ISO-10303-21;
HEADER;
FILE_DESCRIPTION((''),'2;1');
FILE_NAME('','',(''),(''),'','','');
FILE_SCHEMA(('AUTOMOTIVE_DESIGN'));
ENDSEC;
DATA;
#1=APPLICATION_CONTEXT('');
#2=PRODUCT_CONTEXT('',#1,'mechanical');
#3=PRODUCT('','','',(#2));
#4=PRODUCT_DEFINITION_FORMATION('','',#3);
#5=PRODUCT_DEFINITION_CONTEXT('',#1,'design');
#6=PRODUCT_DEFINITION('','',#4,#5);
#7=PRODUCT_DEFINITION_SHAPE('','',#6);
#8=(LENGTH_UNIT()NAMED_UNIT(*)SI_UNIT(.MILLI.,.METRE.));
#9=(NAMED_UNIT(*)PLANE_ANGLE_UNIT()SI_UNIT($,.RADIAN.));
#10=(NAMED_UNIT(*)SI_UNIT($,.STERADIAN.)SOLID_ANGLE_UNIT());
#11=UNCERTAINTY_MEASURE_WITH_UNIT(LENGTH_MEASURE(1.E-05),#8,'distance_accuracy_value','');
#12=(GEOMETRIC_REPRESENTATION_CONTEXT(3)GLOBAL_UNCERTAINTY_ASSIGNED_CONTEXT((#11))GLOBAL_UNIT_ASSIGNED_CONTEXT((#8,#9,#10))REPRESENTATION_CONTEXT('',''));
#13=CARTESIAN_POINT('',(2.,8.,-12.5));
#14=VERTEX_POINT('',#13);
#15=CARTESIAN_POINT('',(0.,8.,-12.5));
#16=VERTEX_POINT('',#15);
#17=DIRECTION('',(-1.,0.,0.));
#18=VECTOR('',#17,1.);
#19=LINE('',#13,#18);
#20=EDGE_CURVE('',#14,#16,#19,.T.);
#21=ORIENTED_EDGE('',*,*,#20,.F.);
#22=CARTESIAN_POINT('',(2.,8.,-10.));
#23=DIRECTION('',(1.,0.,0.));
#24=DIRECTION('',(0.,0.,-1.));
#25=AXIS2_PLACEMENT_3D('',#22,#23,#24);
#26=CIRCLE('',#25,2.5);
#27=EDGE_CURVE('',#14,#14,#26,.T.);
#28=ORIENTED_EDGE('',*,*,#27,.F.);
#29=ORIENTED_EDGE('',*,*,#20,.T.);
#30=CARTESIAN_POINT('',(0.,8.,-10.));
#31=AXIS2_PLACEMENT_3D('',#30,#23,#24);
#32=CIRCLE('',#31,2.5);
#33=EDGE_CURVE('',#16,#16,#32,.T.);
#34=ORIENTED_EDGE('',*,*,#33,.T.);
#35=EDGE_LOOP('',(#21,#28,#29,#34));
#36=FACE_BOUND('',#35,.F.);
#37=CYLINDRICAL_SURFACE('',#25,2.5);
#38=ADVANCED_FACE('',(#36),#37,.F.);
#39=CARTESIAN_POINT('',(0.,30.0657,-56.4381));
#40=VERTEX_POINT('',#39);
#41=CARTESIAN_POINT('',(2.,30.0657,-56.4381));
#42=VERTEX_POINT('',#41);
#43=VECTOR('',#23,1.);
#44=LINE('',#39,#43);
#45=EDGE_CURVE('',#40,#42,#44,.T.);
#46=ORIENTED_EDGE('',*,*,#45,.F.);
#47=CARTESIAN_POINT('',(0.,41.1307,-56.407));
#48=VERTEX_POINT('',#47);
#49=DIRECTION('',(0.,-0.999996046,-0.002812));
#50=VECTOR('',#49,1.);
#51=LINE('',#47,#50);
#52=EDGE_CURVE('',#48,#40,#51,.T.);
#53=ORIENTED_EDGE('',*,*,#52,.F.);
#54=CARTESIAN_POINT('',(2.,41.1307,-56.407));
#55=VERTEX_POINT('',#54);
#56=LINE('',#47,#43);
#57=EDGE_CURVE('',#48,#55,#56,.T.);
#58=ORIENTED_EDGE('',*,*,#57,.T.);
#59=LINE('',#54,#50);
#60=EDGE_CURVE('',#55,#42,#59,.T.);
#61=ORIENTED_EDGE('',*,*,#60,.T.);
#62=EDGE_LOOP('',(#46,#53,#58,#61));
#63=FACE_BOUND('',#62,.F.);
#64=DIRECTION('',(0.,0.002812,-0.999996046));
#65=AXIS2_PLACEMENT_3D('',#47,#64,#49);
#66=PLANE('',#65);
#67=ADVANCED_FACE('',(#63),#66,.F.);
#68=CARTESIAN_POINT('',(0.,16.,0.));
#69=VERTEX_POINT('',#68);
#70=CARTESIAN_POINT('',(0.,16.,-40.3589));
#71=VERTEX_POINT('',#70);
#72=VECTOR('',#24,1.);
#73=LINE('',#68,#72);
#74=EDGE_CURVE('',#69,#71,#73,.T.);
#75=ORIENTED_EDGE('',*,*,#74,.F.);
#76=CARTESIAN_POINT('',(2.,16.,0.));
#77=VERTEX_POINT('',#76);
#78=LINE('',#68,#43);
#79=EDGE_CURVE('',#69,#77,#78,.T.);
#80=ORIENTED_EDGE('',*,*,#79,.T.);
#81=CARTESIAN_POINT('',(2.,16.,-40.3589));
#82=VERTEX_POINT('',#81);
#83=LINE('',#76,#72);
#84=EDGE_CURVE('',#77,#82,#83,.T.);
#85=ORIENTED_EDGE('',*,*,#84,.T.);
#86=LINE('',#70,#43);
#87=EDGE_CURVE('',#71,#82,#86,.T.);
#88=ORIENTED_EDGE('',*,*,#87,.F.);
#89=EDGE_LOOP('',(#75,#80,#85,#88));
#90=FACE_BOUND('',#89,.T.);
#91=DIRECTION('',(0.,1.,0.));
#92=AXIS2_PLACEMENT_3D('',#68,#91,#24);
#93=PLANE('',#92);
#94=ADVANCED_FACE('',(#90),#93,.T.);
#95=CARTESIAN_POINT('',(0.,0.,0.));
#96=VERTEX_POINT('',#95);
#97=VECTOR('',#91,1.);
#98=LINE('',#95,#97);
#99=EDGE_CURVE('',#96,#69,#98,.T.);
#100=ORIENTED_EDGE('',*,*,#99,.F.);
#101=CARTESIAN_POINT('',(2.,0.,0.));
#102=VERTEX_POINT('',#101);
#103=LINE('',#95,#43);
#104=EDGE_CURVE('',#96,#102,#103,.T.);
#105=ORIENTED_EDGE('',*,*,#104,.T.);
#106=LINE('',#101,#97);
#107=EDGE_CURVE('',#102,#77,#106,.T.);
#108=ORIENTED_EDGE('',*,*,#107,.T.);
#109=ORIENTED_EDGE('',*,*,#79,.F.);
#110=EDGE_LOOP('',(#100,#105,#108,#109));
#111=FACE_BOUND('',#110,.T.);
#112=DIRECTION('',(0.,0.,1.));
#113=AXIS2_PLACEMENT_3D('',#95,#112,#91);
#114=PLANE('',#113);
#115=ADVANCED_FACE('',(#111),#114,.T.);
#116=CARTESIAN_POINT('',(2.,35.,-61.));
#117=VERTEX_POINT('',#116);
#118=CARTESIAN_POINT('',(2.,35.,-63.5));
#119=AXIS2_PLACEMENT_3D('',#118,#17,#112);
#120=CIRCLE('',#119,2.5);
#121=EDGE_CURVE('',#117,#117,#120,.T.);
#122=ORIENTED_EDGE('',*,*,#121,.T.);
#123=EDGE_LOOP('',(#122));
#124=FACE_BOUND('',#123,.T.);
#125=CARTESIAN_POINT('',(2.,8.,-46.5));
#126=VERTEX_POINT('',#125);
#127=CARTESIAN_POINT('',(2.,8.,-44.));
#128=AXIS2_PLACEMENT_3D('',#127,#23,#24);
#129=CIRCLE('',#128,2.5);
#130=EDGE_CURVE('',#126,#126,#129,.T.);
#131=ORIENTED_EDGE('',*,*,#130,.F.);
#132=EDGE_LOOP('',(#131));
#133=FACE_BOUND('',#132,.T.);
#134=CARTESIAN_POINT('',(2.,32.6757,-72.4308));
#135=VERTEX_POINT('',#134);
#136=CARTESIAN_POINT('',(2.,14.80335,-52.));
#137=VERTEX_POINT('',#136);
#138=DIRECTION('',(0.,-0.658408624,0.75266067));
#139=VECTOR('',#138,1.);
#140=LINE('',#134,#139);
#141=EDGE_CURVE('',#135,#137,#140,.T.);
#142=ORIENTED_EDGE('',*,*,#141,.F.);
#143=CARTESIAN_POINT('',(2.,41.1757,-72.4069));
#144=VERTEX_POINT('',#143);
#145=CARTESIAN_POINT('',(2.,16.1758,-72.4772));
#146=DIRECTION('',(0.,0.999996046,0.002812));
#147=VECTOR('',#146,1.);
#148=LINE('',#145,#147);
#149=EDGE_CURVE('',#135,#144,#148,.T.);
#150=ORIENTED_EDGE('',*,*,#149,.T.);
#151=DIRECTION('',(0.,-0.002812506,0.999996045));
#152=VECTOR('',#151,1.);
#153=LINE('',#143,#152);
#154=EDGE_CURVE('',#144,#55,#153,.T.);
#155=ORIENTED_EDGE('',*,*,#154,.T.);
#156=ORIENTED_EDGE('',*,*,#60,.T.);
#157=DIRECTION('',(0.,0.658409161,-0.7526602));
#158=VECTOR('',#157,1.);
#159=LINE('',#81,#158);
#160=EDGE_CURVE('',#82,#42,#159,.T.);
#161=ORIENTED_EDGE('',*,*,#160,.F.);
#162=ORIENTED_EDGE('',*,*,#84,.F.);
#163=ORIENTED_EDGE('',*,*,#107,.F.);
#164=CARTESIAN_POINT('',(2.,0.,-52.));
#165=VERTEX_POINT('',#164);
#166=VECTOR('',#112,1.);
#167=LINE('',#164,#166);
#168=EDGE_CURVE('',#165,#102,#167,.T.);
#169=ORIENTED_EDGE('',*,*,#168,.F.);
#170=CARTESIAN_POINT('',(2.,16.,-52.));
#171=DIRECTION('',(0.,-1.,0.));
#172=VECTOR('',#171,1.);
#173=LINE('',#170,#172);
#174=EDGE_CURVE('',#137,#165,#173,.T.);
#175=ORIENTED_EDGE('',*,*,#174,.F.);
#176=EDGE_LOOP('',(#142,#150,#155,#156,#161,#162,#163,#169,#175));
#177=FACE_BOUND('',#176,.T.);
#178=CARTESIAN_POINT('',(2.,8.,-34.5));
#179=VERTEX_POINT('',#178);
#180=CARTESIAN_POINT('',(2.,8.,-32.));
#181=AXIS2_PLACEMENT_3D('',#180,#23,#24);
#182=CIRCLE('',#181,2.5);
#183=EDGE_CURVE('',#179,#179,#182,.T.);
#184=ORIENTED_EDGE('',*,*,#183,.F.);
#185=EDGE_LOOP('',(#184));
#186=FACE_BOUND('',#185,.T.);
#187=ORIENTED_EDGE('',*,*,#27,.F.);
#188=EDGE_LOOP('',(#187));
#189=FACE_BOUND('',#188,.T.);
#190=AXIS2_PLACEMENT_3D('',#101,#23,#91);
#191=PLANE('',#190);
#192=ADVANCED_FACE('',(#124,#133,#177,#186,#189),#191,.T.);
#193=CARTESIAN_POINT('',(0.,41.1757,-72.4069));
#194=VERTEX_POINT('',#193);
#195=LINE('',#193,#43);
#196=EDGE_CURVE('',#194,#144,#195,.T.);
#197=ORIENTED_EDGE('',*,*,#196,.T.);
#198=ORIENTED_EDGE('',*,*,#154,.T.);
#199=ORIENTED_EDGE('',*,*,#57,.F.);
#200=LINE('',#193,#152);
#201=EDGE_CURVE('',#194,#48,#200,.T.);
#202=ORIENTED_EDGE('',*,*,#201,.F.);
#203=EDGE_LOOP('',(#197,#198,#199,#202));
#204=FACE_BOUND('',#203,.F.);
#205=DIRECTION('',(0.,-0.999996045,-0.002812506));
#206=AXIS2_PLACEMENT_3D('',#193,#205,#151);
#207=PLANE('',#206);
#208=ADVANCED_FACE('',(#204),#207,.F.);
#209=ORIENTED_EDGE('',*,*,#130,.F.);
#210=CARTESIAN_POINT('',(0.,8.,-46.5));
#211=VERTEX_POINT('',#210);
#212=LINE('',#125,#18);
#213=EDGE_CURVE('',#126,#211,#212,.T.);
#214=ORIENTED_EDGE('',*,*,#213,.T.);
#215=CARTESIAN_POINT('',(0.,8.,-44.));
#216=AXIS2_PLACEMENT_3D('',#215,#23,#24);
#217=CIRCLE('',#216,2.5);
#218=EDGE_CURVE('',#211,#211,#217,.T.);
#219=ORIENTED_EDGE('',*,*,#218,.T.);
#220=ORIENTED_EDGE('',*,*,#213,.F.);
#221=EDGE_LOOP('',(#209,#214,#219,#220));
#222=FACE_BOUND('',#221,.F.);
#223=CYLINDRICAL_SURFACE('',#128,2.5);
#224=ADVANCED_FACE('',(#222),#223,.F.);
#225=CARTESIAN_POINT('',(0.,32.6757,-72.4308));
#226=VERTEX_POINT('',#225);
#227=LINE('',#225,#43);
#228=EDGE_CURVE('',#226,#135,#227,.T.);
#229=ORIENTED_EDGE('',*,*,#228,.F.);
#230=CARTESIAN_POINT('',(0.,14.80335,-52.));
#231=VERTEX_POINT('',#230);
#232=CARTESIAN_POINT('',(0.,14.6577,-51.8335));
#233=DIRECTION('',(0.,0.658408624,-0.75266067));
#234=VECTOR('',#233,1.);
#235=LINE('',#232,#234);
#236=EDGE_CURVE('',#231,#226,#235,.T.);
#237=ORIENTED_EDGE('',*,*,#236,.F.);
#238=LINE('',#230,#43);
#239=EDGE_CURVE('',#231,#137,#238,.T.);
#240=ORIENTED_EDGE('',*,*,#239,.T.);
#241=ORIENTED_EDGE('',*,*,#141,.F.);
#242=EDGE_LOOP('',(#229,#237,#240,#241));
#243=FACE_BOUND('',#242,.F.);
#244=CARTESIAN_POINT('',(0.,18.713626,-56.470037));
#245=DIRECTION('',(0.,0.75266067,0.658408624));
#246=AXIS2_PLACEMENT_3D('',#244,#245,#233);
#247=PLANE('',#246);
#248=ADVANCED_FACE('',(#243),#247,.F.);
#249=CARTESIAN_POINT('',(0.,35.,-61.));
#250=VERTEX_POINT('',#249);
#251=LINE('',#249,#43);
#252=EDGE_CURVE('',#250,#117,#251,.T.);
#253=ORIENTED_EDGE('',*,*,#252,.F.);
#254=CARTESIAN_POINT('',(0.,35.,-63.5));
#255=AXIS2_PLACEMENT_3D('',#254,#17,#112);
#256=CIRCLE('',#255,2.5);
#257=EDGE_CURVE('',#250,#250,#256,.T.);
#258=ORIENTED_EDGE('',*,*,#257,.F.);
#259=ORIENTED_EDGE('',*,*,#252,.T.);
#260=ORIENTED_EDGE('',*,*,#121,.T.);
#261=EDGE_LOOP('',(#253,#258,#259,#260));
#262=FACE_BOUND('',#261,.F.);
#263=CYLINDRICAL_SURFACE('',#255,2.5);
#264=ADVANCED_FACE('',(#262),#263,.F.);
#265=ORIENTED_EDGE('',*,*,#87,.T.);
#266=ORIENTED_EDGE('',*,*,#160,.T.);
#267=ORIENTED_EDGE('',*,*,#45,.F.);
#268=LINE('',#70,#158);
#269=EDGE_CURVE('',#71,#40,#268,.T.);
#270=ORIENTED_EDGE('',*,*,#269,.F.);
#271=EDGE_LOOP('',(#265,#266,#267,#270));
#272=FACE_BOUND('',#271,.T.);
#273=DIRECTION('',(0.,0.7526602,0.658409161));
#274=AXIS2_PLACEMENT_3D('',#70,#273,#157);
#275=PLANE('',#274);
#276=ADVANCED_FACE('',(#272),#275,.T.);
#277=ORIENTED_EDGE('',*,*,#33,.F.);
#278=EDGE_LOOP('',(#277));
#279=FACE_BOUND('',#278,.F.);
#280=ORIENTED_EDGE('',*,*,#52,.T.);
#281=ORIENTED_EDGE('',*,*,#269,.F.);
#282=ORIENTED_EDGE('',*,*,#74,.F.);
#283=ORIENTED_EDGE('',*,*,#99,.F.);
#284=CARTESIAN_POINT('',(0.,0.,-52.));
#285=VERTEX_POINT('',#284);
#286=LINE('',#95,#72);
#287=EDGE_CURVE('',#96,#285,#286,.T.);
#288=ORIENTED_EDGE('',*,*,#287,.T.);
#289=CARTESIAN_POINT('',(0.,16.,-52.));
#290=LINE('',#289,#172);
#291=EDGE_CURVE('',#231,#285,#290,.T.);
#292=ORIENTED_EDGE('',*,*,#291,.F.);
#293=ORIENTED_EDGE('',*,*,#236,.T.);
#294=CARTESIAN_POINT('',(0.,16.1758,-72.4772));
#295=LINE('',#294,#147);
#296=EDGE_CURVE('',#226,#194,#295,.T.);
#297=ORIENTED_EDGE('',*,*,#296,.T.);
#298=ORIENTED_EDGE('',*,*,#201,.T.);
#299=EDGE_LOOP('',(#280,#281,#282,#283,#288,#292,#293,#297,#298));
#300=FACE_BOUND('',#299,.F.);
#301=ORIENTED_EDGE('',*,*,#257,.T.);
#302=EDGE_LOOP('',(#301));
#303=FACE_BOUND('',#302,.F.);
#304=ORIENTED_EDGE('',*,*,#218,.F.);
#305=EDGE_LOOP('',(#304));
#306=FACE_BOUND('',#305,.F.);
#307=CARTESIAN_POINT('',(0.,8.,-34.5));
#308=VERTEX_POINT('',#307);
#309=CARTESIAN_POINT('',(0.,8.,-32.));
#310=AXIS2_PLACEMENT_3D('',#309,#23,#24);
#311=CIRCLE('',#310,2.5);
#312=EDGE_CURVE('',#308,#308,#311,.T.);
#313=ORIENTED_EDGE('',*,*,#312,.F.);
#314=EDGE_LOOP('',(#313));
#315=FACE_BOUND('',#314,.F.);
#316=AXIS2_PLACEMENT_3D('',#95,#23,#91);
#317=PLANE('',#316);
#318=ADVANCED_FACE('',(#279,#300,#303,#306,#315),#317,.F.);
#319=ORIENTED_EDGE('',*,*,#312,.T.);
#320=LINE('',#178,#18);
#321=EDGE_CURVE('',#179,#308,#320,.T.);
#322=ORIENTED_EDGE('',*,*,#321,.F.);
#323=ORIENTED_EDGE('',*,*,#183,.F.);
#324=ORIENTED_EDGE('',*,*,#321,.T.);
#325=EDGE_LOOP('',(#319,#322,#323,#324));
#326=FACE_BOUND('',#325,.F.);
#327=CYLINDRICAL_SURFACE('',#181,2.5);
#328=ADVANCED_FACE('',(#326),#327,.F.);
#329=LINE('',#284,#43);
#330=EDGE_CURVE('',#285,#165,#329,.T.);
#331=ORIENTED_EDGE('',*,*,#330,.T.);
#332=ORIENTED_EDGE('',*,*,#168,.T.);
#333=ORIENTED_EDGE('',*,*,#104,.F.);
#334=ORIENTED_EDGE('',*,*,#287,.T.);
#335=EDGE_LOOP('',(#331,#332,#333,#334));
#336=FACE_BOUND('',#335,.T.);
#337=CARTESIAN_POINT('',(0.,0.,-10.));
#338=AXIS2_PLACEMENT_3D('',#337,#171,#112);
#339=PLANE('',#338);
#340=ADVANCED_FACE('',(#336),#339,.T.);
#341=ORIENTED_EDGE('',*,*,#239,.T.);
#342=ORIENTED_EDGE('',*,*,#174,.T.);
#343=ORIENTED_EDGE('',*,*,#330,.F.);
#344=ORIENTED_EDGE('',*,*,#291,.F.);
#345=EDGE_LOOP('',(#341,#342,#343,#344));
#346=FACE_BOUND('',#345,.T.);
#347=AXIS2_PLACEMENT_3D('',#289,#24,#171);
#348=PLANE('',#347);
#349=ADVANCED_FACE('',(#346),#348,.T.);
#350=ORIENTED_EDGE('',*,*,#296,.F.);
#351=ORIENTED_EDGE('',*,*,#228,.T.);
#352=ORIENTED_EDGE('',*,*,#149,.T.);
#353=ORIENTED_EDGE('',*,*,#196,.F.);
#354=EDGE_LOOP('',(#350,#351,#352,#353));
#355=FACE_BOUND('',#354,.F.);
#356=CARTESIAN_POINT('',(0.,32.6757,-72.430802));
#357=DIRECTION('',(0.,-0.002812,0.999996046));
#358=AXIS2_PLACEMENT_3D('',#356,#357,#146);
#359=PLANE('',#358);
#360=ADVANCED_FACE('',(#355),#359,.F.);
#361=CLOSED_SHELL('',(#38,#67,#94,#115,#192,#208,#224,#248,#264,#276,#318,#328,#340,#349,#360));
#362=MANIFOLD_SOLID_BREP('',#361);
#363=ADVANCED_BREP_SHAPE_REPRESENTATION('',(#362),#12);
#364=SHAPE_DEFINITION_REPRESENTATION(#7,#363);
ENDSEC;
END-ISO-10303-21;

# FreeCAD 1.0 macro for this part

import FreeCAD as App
import Part
import Sketcher
Q = App.Units.Quantity


def add_polygon(sketch, points):
    """Adds a closed chain of lines whose ends are joined by coincident constraints."""
    first, n = sketch.GeometryCount, len(points)
    for a, b in zip(points, points[1:] + points[:1]):
        sketch.addGeometry(Part.LineSegment(App.Vector(*a, 0), App.Vector(*b, 0)), False)
    for i in range(n):
        sketch.addConstraint(Sketcher.Constraint("Coincident", first + i, 2, first + (i + 1) % n, 1))

doc = App.newDocument("Part")
body = doc.addObject("PartDesign::Body", "Body")

# Sketch on YZ plane
sketch1 = body.newObject("Sketcher::SketchObject", "Sketch")
sketch1.AttachmentSupport = (doc.getObject("YZ_Plane"), [""])
sketch1.MapMode = "FlatFace"
add_polygon(sketch1, [(16, 0), (0, 0), (0, -52), (16, -52)])  # lines 0-3
sketch1.addConstraint(Sketcher.Constraint("Horizontal", 0))
sketch1.addConstraint(Sketcher.Constraint("Vertical", 1))
sketch1.addConstraint(Sketcher.Constraint("Horizontal", 2))
sketch1.addConstraint(Sketcher.Constraint("Vertical", 3))
sketch1.addConstraint(Sketcher.Constraint("Coincident", 0, 2, -1, 1))
sketch1.addConstraint(Sketcher.Constraint("DistanceX", 0, 2, 0, 1, Q("16 mm")))
sketch1.addConstraint(Sketcher.Constraint("DistanceY", 1, 2, 1, 1, Q("52 mm")))
pad1 = body.newObject("PartDesign::Pad", "Pad")
pad1.Profile = sketch1
pad1.Length = 2

# Sketch on YZ plane
sketch2 = body.newObject("Sketcher::SketchObject", "Sketch001")
sketch2.AttachmentSupport = (doc.getObject("YZ_Plane"), [""])
sketch2.MapMode = "FlatFace"
sketch2.AttachmentOffset = App.Placement(App.Vector(0, 0, 2), App.Rotation())
sketch2.addGeometry(Part.Circle(App.Vector(8, -10, 0), App.Vector(0, 0, 1), 2.5), False)
sketch2.addGeometry(Part.Circle(App.Vector(8, -32, 0), App.Vector(0, 0, 1), 2.5), False)
sketch2.addGeometry(Part.Circle(App.Vector(8, -44, 0), App.Vector(0, 0, 1), 2.5), False)
sketch2.addConstraint(Sketcher.Constraint("Equal", 0, 1))
sketch2.addConstraint(Sketcher.Constraint("Equal", 1, 2))
sketch2.addConstraint(Sketcher.Constraint("Vertical", 0, 3, 1, 3))
sketch2.addConstraint(Sketcher.Constraint("Vertical", 1, 3, 2, 3))
sketch2.addConstraint(Sketcher.Constraint("Diameter", 0, Q("5 mm")))
sketch2.addConstraint(Sketcher.Constraint("DistanceX", -1, 1, 0, 3, Q("8 mm")))
sketch2.addConstraint(Sketcher.Constraint("DistanceY", 0, 3, -1, 1, Q("10 mm")))
sketch2.addConstraint(Sketcher.Constraint("DistanceY", 1, 3, 0, 3, Q("22 mm")))
sketch2.addConstraint(Sketcher.Constraint("DistanceY", 2, 3, 1, 3, Q("12 mm")))
pocket1 = body.newObject("PartDesign::Pocket", "Pocket")
pocket1.Profile = sketch2
pocket1.Length = 10

# Sketch on YZ plane
sketch3 = body.newObject("Sketcher::SketchObject", "Sketch002")
sketch3.AttachmentSupport = (doc.getObject("YZ_Plane"), [""])
sketch3.MapMode = "FlatFace"
add_polygon(sketch3, [(41.1757, -72.4069), (32.6757, -72.4308), (14.6577, -51.8335), (16, -40.3589), (30.0657, -56.438115), (41.1307, -56.407)])  # lines 0-5
sketch3.addGeometry(Part.Circle(App.Vector(35, -63.5, 0), App.Vector(0, 0, 1), 2.5), False)  # 6
sketch3.addConstraint(Sketcher.Constraint("Parallel", 1, 3))
sketch3.addConstraint(Sketcher.Constraint("Parallel", 0, 4))
sketch3.addConstraint(Sketcher.Constraint("Perpendicular", 4, 5))
sketch3.addConstraint(Sketcher.Constraint("Diameter", 6, Q("5 mm")))
sketch3.addConstraint(Sketcher.Constraint("Distance", 5, Q("16 mm")))
sketch3.addConstraint(Sketcher.Constraint("DistanceX", -1, 1, 6, 3, Q("35 mm")))
sketch3.addConstraint(Sketcher.Constraint("DistanceX", -1, 1, 2, 2, Q("16 mm")))
sketch3.addConstraint(Sketcher.Constraint("Distance", 0, Q("8.5 mm")))
sketch3.addConstraint(Sketcher.Constraint("DistanceY", 6, 3, -1, 1, Q("63.5 mm")))
sketch3.addConstraint(Sketcher.Constraint("Angle", 0, Q("-179.839 deg")))
sketch3.addConstraint(Sketcher.Constraint("DistanceX", 3, 2, 0, 2, Q("2.61 mm")))
sketch3.addConstraint(Sketcher.Constraint("Distance", 1, Q("27.366 mm")))
sketch3.addConstraint(Sketcher.Constraint("DistanceY", 2, 2, -1, 1, Q("40.359 mm")))
sketch3.addConstraint(Sketcher.Constraint("DistanceY", 3, 2, -1, 1, Q("56.438 mm")))
sketch3.addConstraint(Sketcher.Constraint("DistanceX", 1, 2, 0, 2, Q("18.018 mm")))
pad2 = body.newObject("PartDesign::Pad", "Pad001")
pad2.Profile = sketch3
pad2.Length = 2

doc.recompute()
